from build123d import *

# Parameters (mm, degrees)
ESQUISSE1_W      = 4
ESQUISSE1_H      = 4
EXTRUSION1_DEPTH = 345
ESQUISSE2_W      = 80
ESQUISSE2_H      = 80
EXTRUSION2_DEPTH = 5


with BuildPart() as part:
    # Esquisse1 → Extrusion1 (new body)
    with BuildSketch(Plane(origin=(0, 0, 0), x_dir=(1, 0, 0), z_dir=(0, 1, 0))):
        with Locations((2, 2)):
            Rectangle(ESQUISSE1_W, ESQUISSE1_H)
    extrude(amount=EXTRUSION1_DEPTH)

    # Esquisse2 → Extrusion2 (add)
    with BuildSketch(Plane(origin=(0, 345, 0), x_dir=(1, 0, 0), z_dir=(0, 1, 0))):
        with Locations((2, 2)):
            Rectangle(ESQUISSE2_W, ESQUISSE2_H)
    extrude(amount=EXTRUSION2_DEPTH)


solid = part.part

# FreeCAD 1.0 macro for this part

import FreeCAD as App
import Part
import Sketcher
Q = App.Units.Quantity

doc = App.newDocument("Part")
body = doc.addObject("PartDesign::Body", "Body")

sketch1 = doc.addObject("Sketcher::SketchObject", "Sketch")
body.addObject(sketch1)
sketch1.AttachmentSupport = (doc.XZ_Plane, [""])
sketch1.MapMode = "FlatFace"
sketch1.addGeometry([
    Part.LineSegment(App.Vector(0, -4, 0), App.Vector(0, 0, 0)),
    Part.LineSegment(App.Vector(0, 0, 0), App.Vector(4, 0, 0)),
    Part.LineSegment(App.Vector(4, 0, 0), App.Vector(4, -4, 0)),
    Part.LineSegment(App.Vector(4, -4, 0), App.Vector(0, -4, 0)),
], False)
sketch1.addConstraint([
    Sketcher.Constraint("Coincident", 0, 2, 1, 1),
    Sketcher.Constraint("Coincident", 1, 2, 2, 1),
    Sketcher.Constraint("Coincident", 2, 2, 3, 1),
    Sketcher.Constraint("Coincident", 3, 2, 0, 1),
    Sketcher.Constraint("Vertical", 0),
    Sketcher.Constraint("Horizontal", 1),
    Sketcher.Constraint("Vertical", 2),
    Sketcher.Constraint("Horizontal", 3),
    Sketcher.Constraint("Coincident", 0, 2, -1, 1),
    Sketcher.Constraint("Equal", 3, 0),
    Sketcher.Constraint("DistanceX", 1, 1, 1, 2, Q("4 mm")),
])
pad1 = doc.addObject("PartDesign::Pad", "Pad")
body.addObject(pad1)
pad1.Profile = sketch1
pad1.Length = 345
pad1.Reversed = True

sketch2 = doc.addObject("Sketcher::SketchObject", "Sketch001")
body.addObject(sketch2)
sketch2.AttachmentSupport = (doc.XZ_Plane, [""])
sketch2.MapMode = "FlatFace"
sketch2.AttachmentOffset = App.Placement(App.Vector(0, 0, -345), App.Rotation())
sketch2.addGeometry([
    Part.LineSegment(App.Vector(-38, -42, 0), App.Vector(-38, 38, 0)),
    Part.LineSegment(App.Vector(-38, 38, 0), App.Vector(42, 38, 0)),
    Part.LineSegment(App.Vector(42, 38, 0), App.Vector(42, -42, 0)),
    Part.LineSegment(App.Vector(42, -42, 0), App.Vector(-38, -42, 0)),
], False)
sketch2.addConstraint([
    Sketcher.Constraint("Coincident", 0, 2, 1, 1),
    Sketcher.Constraint("Coincident", 1, 2, 2, 1),
    Sketcher.Constraint("Coincident", 2, 2, 3, 1),
    Sketcher.Constraint("Coincident", 3, 2, 0, 1),
    Sketcher.Constraint("Vertical", 0),
    Sketcher.Constraint("Horizontal", 1),
    Sketcher.Constraint("Vertical", 2),
    Sketcher.Constraint("Horizontal", 3),
    Sketcher.Constraint("Equal", 3, 0),
    Sketcher.Constraint("DistanceX", 1, 1, 1, 2, Q("80 mm")),
    Sketcher.Constraint("DistanceX", 0, 2, -1, 1, Q("38 mm")),
    Sketcher.Constraint("DistanceY", -1, 1, 0, 2, Q("38 mm")),
])
pad2 = doc.addObject("PartDesign::Pad", "Pad001")
body.addObject(pad2)
pad2.Profile = sketch2
pad2.Length = 5
pad2.Reversed = True

doc.recompute()
